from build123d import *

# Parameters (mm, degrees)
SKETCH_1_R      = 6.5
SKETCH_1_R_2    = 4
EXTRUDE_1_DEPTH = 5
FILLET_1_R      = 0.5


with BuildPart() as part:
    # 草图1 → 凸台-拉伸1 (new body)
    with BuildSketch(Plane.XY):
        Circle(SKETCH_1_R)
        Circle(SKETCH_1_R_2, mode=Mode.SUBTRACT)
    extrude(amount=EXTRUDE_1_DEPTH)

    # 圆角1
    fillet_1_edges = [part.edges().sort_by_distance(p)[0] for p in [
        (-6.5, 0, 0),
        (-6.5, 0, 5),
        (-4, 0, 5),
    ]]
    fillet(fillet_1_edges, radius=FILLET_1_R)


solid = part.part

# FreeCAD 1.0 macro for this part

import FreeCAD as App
import Part
import Sketcher


def edges_at(feature, points):
    """Names of the edges that pass closest to the given points."""
    edges = feature.Shape.Edges
    near = lambda p: min(range(len(edges)), key=lambda i: edges[i].distToShape(Part.Vertex(*p))[0])
    return sorted({f"Edge{near(p) + 1}" for p in points})

doc = App.newDocument("Part")
body = doc.addObject("PartDesign::Body", "Body")

# Sketch on XY plane
sketch1 = body.newObject("Sketcher::SketchObject", "Sketch")
sketch1.AttachmentSupport = (doc.getObject("XY_Plane"), [""])
sketch1.MapMode = "FlatFace"
sketch1.addGeometry(Part.Circle(App.Vector(0, 0, 0), App.Vector(0, 0, 1), 6.5), False)
sketch1.addGeometry(Part.Circle(App.Vector(0, 0, 0), App.Vector(0, 0, 1), 4), False)
sketch1.addConstraint(Sketcher.Constraint("Coincident", 0, 3, -1, 1))
sketch1.addConstraint(Sketcher.Constraint("Coincident", 1, 3, -1, 1))
sketch1.addConstraint(Sketcher.Constraint("Diameter", 0, 13.0))
sketch1.addConstraint(Sketcher.Constraint("Diameter", 1, 8.0))
pad1 = body.newObject("PartDesign::Pad", "Pad")
pad1.Profile = sketch1
pad1.Length = 5
doc.recompute()

fillet = body.newObject("PartDesign::Fillet", "Fillet")
fillet.Base = (pad1, edges_at(pad1, [(-6.5, 0, 0), (-6.5, 0, 5), (-4, 0, 5)]))
fillet.Radius = 0.5

doc.recompute()
